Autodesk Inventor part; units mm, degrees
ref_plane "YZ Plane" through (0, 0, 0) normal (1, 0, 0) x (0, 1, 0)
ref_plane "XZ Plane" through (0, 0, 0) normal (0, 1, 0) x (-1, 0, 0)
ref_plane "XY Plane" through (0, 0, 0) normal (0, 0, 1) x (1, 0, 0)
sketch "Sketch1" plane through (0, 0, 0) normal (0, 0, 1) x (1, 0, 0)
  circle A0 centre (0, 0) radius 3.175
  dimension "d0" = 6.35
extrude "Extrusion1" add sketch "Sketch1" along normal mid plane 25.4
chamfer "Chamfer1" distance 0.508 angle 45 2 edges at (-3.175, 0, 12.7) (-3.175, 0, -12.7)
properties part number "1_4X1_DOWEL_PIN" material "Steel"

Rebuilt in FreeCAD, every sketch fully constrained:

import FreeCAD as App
import Part
import Sketcher
from FreeCAD import Vector
Q = App.Units.Quantity


def edges_at(feature, points):
    """Names of the edges that pass closest to the given points."""
    edges = feature.Shape.Edges
    near = lambda p: min(range(len(edges)), key=lambda i: edges[i].distToShape(Part.Vertex(*p))[0])
    return sorted({f"Edge{near(p) + 1}" for p in points})

doc = App.newDocument("Part")
body = doc.addObject("PartDesign::Body", "Body")

# Sketch on XY plane
sketch1 = body.newObject("Sketcher::SketchObject", "Sketch")
sketch1.AttachmentSupport = (doc.getObject("XY_Plane"), [""])
sketch1.MapMode = "FlatFace"
sketch1.addGeometry(Part.Circle(Vector(0, 0, 0), Vector(0, 0, 1), 3.2), False)
sketch1.addConstraint([
    Sketcher.Constraint("Coincident", 0, 3, -1, 1),
    Sketcher.Constraint("Diameter", 0, Q("0.25 in")),
])
pad1 = body.newObject("PartDesign::Pad", "Pad")
pad1.Profile = sketch1
pad1.Length = Q("1 in")
pad1.Midplane = True
doc.recompute()

chamfer = body.newObject("PartDesign::Chamfer", "Chamfer")
chamfer.Base = (pad1, edges_at(pad1, [(-3.175, 0, 12.7), (-3.175, 0, -12.7)]))
chamfer.Size = Q("0.02 in")

doc.recompute()
